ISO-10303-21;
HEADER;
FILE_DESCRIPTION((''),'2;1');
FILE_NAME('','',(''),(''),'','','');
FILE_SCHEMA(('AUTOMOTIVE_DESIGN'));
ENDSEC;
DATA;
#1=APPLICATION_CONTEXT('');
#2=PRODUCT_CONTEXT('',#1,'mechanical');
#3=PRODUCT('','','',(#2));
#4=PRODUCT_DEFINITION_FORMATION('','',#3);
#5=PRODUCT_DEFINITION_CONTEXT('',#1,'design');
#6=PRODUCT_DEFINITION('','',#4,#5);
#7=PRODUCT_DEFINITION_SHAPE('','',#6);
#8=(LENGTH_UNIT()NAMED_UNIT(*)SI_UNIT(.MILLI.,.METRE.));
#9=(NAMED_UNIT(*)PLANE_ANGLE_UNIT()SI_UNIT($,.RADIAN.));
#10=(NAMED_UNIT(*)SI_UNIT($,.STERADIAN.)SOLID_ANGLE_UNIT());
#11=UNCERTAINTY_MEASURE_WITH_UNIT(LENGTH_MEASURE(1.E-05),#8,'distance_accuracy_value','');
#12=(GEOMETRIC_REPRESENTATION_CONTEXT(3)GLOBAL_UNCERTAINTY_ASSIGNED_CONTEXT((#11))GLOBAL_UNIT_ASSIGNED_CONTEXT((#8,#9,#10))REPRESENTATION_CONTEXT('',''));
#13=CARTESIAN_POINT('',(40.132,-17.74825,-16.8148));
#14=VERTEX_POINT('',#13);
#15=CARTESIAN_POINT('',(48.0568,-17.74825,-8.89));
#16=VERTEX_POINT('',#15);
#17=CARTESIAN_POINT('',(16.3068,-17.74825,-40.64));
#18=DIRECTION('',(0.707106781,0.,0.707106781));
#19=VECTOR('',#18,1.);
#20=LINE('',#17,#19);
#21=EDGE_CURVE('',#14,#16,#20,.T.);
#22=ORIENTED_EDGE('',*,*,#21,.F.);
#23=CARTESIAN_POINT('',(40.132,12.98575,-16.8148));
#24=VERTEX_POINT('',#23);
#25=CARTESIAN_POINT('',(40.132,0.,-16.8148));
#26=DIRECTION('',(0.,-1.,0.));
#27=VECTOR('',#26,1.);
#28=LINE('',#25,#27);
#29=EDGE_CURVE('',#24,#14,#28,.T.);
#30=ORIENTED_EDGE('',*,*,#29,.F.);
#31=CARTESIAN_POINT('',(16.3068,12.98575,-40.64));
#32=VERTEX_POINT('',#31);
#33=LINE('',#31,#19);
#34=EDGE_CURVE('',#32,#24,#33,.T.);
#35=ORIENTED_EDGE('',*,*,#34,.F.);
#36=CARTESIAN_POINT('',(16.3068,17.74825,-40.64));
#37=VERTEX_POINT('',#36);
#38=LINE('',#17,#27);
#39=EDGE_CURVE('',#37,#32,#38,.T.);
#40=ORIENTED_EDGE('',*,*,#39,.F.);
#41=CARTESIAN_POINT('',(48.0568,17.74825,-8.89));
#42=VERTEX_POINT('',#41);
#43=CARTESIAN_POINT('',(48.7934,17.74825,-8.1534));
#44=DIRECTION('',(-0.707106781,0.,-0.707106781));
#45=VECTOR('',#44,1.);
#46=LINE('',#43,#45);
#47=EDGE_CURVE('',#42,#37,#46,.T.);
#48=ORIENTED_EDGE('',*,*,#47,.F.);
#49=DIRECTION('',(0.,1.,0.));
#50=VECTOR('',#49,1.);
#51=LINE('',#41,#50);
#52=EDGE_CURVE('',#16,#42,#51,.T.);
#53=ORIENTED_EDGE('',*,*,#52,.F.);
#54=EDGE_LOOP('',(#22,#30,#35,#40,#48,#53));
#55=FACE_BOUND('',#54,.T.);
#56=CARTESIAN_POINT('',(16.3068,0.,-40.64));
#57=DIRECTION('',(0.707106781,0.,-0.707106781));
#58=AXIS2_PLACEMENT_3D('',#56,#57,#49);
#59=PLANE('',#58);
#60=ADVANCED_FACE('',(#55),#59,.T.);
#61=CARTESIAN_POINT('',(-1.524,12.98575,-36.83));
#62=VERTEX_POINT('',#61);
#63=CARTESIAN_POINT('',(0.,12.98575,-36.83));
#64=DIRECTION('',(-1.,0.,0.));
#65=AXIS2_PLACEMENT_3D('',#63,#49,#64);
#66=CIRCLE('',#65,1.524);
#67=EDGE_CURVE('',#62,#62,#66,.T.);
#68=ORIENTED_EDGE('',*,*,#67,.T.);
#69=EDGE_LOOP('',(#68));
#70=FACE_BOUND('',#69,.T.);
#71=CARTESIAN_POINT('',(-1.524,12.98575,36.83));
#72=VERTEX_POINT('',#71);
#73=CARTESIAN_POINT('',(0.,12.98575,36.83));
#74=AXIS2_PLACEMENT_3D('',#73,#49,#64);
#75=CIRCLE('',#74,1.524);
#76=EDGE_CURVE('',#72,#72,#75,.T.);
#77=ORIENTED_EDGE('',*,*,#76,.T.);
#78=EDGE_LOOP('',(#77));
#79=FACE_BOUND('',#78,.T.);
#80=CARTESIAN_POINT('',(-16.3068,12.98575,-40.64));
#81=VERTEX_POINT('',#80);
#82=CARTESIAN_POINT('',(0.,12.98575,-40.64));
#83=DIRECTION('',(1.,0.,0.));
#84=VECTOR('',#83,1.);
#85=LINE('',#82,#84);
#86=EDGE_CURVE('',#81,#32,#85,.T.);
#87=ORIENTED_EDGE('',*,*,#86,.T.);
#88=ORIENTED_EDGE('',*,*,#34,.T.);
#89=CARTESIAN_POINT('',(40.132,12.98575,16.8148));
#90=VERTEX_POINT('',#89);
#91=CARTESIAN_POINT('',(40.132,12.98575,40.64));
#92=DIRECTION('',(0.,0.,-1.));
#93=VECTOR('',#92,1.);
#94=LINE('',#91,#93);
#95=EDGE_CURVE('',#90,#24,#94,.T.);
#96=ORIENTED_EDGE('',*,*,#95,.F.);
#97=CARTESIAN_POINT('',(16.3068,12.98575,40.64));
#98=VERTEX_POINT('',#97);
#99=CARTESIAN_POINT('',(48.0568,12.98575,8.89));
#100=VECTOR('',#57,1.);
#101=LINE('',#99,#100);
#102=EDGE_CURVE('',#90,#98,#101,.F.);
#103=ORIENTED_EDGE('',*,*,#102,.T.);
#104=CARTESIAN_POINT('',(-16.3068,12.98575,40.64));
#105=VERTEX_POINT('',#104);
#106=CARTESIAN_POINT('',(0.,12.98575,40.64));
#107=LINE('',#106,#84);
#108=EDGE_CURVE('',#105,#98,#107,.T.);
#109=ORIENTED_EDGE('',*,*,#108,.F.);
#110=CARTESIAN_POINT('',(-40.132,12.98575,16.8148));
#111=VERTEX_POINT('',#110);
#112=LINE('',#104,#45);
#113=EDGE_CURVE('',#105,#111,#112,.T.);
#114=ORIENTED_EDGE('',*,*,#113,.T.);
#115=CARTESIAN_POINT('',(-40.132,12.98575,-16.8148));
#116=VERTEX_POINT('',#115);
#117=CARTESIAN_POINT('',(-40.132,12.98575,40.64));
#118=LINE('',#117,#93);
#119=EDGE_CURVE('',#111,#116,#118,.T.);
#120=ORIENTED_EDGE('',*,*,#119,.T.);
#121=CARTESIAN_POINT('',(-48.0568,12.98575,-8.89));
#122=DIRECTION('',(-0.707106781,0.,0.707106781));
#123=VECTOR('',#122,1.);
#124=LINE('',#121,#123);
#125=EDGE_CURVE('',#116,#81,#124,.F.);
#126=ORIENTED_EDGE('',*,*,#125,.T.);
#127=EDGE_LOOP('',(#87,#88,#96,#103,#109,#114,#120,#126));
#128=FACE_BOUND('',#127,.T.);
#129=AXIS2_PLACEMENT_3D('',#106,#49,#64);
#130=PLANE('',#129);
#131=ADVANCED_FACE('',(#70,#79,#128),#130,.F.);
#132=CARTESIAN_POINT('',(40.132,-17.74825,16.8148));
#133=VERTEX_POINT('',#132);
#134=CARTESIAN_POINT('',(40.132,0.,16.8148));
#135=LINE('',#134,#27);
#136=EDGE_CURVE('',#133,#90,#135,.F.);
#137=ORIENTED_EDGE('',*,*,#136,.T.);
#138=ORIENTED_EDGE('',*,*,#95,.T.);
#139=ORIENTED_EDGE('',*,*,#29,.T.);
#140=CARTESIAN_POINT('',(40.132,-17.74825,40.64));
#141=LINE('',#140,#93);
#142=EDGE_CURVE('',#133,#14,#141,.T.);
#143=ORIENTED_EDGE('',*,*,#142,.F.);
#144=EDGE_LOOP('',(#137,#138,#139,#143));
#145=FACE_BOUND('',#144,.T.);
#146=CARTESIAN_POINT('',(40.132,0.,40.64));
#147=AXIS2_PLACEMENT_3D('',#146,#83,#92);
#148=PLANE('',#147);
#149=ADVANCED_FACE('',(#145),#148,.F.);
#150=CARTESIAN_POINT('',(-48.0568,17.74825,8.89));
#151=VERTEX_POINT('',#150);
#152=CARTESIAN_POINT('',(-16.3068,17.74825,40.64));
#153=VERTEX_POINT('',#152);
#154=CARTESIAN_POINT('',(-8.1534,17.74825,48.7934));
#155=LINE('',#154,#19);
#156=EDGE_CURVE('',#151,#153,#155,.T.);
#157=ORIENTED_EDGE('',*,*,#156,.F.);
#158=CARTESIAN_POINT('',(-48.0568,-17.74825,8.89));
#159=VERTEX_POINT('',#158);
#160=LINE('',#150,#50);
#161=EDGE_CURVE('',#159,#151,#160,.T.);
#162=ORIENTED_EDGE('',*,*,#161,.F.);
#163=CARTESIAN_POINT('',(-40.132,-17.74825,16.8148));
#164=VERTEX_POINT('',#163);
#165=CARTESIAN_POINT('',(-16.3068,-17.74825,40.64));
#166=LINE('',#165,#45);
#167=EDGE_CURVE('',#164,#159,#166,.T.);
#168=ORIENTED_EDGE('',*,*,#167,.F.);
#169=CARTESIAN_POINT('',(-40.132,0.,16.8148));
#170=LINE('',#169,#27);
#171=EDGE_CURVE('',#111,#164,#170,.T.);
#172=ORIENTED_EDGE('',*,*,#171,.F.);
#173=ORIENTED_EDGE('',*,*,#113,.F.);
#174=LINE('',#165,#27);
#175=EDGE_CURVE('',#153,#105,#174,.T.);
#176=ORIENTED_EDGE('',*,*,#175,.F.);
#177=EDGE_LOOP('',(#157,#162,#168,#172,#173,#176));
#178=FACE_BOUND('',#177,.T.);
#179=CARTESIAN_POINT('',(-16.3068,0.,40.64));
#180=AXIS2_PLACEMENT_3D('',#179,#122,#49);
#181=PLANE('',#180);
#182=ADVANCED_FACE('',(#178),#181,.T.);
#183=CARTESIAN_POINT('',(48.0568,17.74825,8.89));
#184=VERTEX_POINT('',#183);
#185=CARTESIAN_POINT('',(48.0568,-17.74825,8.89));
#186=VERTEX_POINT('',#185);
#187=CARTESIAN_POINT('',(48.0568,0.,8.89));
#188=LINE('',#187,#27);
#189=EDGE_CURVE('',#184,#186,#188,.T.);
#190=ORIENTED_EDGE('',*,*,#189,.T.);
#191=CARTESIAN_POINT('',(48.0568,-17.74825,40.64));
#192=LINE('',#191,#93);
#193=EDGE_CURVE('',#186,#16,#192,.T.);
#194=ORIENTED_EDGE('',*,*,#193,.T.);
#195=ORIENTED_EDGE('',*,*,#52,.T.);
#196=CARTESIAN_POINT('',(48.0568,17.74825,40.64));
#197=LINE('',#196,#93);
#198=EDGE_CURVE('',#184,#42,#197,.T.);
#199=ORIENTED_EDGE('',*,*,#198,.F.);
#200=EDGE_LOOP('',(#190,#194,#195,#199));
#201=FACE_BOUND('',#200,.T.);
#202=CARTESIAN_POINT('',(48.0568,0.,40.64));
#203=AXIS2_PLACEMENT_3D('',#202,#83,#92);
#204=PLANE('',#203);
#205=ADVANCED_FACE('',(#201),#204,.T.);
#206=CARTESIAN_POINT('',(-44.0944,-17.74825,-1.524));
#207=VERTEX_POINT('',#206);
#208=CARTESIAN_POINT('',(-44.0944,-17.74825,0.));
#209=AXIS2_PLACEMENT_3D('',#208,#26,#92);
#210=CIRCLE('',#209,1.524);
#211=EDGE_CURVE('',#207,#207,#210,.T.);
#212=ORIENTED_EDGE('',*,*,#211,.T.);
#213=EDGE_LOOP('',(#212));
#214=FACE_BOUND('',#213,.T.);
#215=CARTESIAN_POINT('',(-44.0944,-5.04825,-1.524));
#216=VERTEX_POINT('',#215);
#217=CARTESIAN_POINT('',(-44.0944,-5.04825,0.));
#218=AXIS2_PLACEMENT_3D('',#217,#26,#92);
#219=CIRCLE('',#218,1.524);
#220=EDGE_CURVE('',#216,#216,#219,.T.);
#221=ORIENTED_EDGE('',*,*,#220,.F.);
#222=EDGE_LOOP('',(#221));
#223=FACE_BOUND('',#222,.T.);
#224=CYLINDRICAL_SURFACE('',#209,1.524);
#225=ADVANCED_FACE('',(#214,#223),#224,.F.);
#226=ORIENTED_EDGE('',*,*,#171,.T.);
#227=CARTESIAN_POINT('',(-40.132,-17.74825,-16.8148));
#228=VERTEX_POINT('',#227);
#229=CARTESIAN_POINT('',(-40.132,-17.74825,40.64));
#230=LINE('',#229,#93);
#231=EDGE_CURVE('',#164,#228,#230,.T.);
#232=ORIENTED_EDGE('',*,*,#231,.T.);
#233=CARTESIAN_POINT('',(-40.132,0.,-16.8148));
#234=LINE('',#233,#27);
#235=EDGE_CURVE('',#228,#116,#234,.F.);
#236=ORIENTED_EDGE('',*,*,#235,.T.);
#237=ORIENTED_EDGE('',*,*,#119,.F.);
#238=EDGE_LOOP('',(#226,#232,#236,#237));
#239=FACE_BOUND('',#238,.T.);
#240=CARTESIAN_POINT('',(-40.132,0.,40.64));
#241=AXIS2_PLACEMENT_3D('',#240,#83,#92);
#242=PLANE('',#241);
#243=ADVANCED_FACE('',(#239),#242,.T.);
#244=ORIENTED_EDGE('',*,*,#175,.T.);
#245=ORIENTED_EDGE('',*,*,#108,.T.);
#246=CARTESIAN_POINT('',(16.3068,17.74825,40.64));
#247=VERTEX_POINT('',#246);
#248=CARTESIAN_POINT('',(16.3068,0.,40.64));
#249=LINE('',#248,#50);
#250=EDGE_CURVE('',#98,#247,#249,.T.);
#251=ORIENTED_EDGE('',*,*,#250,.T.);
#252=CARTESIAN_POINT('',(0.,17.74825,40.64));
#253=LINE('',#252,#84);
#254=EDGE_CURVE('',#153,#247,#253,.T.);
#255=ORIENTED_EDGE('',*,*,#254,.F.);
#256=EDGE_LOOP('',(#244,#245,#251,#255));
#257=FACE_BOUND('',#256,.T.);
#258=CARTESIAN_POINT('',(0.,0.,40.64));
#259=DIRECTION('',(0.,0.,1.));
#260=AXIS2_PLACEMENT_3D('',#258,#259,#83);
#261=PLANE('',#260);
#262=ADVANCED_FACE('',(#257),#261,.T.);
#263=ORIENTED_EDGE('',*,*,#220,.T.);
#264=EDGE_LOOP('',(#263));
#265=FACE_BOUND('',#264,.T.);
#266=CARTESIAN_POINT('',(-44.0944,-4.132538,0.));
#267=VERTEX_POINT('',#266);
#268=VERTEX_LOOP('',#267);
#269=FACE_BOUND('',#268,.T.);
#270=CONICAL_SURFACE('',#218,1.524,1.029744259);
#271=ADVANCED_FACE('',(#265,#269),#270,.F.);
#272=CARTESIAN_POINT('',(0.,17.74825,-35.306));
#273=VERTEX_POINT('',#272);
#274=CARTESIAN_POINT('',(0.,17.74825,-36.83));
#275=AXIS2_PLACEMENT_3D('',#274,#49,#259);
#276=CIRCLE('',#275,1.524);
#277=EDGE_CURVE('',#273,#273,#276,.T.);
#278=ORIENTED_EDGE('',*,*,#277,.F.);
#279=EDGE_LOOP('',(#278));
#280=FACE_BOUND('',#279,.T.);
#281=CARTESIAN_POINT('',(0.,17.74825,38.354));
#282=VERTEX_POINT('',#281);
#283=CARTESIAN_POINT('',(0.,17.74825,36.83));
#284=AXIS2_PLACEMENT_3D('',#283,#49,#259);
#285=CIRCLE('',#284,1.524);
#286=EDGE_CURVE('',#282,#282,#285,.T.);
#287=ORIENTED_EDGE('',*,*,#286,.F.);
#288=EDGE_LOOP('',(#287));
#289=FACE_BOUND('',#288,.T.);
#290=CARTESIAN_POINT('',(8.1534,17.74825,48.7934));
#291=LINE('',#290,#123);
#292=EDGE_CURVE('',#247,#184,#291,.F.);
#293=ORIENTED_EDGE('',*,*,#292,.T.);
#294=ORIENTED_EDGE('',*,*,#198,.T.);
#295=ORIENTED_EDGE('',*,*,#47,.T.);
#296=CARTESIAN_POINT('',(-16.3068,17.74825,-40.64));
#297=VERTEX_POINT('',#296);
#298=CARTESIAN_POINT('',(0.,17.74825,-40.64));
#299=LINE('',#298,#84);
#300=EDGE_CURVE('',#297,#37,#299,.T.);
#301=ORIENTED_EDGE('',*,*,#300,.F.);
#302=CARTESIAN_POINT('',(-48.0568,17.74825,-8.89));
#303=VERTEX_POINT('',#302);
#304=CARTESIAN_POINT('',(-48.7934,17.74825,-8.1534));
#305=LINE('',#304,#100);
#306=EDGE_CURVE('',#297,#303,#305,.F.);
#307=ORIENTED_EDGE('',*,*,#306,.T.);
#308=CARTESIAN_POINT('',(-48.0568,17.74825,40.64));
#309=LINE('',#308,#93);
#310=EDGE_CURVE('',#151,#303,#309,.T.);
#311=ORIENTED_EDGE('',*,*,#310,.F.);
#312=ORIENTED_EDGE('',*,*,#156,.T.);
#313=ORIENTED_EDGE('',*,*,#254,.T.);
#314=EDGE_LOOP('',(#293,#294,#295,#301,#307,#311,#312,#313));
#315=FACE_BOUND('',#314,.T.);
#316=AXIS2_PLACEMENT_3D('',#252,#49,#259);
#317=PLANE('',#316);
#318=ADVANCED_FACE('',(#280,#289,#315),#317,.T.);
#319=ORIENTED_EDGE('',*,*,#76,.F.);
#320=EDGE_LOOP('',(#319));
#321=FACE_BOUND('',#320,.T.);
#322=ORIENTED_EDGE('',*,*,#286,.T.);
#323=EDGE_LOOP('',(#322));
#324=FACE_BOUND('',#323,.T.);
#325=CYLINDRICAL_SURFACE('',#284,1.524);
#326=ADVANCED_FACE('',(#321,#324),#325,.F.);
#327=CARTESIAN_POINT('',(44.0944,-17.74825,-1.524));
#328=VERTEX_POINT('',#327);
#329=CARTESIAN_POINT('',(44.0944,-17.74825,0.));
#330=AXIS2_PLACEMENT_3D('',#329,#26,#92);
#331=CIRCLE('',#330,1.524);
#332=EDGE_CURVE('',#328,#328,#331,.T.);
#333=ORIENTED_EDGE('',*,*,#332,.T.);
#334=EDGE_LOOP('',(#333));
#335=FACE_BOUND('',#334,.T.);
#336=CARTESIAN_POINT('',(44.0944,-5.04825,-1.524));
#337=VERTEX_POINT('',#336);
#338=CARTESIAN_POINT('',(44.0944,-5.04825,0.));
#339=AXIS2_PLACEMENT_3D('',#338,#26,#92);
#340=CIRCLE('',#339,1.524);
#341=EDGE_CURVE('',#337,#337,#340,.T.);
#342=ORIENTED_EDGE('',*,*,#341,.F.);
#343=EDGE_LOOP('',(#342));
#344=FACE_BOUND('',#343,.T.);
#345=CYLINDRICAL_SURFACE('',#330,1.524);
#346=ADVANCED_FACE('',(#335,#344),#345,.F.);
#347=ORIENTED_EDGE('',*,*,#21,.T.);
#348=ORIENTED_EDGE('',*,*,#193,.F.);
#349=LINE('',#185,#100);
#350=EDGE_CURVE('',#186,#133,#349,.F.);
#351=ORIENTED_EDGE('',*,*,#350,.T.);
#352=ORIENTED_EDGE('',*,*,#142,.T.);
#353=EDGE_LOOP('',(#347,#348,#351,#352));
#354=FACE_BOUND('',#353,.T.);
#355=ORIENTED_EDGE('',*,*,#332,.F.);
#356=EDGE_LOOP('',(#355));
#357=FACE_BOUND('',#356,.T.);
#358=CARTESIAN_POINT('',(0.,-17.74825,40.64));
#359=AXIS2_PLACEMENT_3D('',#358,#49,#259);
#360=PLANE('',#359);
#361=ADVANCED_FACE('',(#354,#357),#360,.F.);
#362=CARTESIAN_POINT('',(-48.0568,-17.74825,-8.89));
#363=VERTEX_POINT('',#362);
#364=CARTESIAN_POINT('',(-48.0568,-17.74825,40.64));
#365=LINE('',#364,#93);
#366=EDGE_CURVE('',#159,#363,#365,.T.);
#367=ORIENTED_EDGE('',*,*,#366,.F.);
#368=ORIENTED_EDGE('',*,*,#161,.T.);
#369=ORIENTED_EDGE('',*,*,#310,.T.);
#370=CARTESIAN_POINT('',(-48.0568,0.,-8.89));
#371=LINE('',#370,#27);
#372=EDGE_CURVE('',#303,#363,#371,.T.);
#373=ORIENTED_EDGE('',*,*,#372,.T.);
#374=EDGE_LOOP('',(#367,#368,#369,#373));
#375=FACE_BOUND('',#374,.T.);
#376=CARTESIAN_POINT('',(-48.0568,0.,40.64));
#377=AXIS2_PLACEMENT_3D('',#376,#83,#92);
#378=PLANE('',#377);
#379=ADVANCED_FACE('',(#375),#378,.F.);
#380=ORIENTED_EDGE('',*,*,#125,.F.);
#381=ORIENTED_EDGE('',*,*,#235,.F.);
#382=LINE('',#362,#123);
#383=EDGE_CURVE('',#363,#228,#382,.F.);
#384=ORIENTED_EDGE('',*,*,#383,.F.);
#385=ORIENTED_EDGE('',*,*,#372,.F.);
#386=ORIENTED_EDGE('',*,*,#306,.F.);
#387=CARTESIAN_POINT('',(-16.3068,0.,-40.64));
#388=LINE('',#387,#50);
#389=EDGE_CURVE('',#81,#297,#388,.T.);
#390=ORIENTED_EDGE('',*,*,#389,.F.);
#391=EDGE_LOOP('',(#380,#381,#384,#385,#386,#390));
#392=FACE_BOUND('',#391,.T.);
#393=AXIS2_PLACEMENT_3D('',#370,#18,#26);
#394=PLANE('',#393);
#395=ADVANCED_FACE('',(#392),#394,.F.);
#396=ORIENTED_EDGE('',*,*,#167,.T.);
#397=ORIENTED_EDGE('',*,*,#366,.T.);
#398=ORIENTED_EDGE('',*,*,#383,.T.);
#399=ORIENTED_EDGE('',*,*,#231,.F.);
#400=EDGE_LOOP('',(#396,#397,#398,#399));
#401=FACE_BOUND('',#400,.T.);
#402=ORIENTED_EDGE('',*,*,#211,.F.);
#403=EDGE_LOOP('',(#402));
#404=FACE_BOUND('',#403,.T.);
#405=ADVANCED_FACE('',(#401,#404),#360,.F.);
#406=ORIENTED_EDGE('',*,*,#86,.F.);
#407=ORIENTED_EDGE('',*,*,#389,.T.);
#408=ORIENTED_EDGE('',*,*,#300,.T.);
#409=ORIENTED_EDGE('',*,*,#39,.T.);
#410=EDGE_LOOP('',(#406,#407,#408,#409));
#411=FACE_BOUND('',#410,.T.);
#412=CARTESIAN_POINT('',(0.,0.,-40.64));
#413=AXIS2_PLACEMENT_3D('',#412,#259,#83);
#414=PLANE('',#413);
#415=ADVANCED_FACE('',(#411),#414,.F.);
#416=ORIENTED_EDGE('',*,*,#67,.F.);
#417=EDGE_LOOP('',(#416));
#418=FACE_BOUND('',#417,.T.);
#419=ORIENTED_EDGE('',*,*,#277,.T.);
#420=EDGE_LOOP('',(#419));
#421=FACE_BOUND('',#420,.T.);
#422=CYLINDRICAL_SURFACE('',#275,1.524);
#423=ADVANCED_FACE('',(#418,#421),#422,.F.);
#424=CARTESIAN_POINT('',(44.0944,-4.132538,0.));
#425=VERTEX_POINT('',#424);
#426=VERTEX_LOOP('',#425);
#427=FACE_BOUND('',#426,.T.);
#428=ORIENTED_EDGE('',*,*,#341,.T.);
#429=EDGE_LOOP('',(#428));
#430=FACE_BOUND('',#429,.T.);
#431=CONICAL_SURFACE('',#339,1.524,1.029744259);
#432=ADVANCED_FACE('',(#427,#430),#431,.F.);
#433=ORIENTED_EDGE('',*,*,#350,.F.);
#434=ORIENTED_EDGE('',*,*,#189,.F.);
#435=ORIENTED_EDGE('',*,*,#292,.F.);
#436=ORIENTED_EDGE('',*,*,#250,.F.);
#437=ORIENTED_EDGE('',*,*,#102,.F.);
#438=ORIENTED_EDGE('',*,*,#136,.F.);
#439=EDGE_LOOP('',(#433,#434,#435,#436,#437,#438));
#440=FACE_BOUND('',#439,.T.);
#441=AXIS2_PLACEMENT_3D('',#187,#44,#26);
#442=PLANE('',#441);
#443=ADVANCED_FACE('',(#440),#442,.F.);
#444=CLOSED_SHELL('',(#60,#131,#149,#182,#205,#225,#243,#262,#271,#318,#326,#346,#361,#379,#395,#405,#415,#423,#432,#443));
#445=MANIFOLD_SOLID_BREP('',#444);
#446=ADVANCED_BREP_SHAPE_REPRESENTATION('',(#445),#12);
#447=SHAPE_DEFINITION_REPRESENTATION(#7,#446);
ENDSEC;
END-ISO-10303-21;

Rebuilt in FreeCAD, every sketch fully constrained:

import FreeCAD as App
import Part
import Sketcher
Q = App.Units.Quantity


def edges_at(feature, points):
    """Names of the edges that pass closest to the given points."""
    edges = feature.Shape.Edges
    near = lambda p: min(range(len(edges)), key=lambda i: edges[i].distToShape(Part.Vertex(*p))[0])
    return sorted({f"Edge{near(p) + 1}" for p in points})

doc = App.newDocument("Part")
body = doc.addObject("PartDesign::Body", "Body")

# Sketch on XY plane
sketch1 = doc.addObject("Sketcher::SketchObject", "Sketch")
body.addObject(sketch1)
sketch1.AttachmentSupport = (doc.XY_Plane, [""])
sketch1.MapMode = "FlatFace"
sketch1.addGeometry(Part.LineSegment(App.Vector(48, 18, 0), App.Vector(-48, 18, 0)), False)
sketch1.addGeometry(Part.LineSegment(App.Vector(-48, 18, 0), App.Vector(-48, -18, 0)), False)
sketch1.addGeometry(Part.LineSegment(App.Vector(-48, -18, 0), App.Vector(-40, -18, 0)), False)
sketch1.addGeometry(Part.LineSegment(App.Vector(-40, -18, 0), App.Vector(-40, 13, 0)), False)
sketch1.addGeometry(Part.LineSegment(App.Vector(-40, 13, 0), App.Vector(40, 13, 0)), False)
sketch1.addGeometry(Part.LineSegment(App.Vector(40, 13, 0), App.Vector(40, -18, 0)), False)
sketch1.addGeometry(Part.LineSegment(App.Vector(40, -18, 0), App.Vector(48, -18, 0)), False)
sketch1.addGeometry(Part.LineSegment(App.Vector(48, -18, 0), App.Vector(48, 18, 0)), False)
sketch1.addConstraint(Sketcher.Constraint("Coincident", 0, 2, 1, 1))
sketch1.addConstraint(Sketcher.Constraint("Coincident", 1, 2, 2, 1))
sketch1.addConstraint(Sketcher.Constraint("Coincident", 2, 2, 3, 1))
sketch1.addConstraint(Sketcher.Constraint("Coincident", 3, 2, 4, 1))
sketch1.addConstraint(Sketcher.Constraint("Coincident", 4, 2, 5, 1))
sketch1.addConstraint(Sketcher.Constraint("Coincident", 5, 2, 6, 1))
sketch1.addConstraint(Sketcher.Constraint("Coincident", 6, 2, 7, 1))
sketch1.addConstraint(Sketcher.Constraint("Coincident", 7, 2, 0, 1))
sketch1.addConstraint(Sketcher.Constraint("Horizontal", 0))
sketch1.addConstraint(Sketcher.Constraint("Vertical", 1))
sketch1.addConstraint(Sketcher.Constraint("Horizontal", 2))
sketch1.addConstraint(Sketcher.Constraint("Vertical", 3))
sketch1.addConstraint(Sketcher.Constraint("Horizontal", 4))
sketch1.addConstraint(Sketcher.Constraint("Vertical", 5))
sketch1.addConstraint(Sketcher.Constraint("Horizontal", 6))
sketch1.addConstraint(Sketcher.Constraint("Vertical", 7))
sketch1.addConstraint(Sketcher.Constraint("Symmetric", 0, 2, 6, 2, -1, 1))
sketch1.addConstraint(Sketcher.Constraint("Symmetric", 2, 2, 5, 2, -2))
sketch1.addConstraint(Sketcher.Constraint("DistanceX", 4, 1, 4, 2, Q("3.16 in")))
sketch1.addConstraint(Sketcher.Constraint("DistanceY", 3, 1, 3, 2, Q("1.21 in")))
sketch1.addConstraint(Sketcher.Constraint("DistanceX", 0, 2, 0, 1, Q("3.784 in")))
sketch1.addConstraint(Sketcher.Constraint("DistanceY", 1, 2, 1, 1, Q("1.3975 in")))
pad1 = doc.addObject("PartDesign::Pad", "Pad")
body.addObject(pad1)
pad1.Profile = sketch1
pad1.Length = Q("3.2 in")
pad1.Midplane = True

# Sketch on XZ plane
sketch2 = doc.addObject("Sketcher::SketchObject", "Sketch001")
body.addObject(sketch2)
sketch2.AttachmentSupport = (doc.XZ_Plane, [""])
sketch2.MapMode = "FlatFace"
sketch2.AttachmentOffset = App.Placement(App.Vector(0, 0, 17.74825), App.Rotation())
sketch2.addGeometry(Part.Circle(App.Vector(44.1, 0, 0), App.Vector(0, 0, 1), 1.5), False)
sketch2.addGeometry(Part.Circle(App.Vector(-44.1, 0, 0), App.Vector(0, 0, 1), 1.5), False)
sketch2.addConstraint(Sketcher.Constraint("Equal", 0, 1))
sketch2.addConstraint(Sketcher.Constraint("Symmetric", 0, 3, 1, 3, -1, 1))
sketch2.addConstraint(Sketcher.Constraint("PointOnObject", 0, 3, -1))
sketch2.addConstraint(Sketcher.Constraint("Diameter", 0, Q("0.12 in")))
sketch2.addConstraint(Sketcher.Constraint("DistanceX", -1, 1, 0, 3, Q("1.736 in")))
doc.recompute()
hole = doc.addObject("PartDesign::Hole", "Hole")
body.addObject(hole)
hole.Profile = sketch2
hole.ThreadType = "None"
hole.Diameter = Q("0.12 in")
hole.DepthType = "Dimension"
hole.Depth = Q("0.5 in")
hole.DrillPoint = "Angled"
hole.DrillPointAngle = 118

# Sketch on XZ plane
sketch3 = doc.addObject("Sketcher::SketchObject", "Sketch002")
body.addObject(sketch3)
sketch3.AttachmentSupport = (doc.XZ_Plane, [""])
sketch3.MapMode = "FlatFace"
sketch3.AttachmentOffset = App.Placement(App.Vector(0, 0, -17.74825), App.Rotation())
sketch3.addGeometry(Part.Circle(App.Vector(0, 36.8, 0), App.Vector(0, 0, 1), 1.5), False)
sketch3.addGeometry(Part.Circle(App.Vector(0, -36.8, 0), App.Vector(0, 0, 1), 1.5), False)
sketch3.addConstraint(Sketcher.Constraint("Equal", 0, 1))
sketch3.addConstraint(Sketcher.Constraint("Symmetric", 0, 3, 1, 3, -1, 1))
sketch3.addConstraint(Sketcher.Constraint("PointOnObject", 0, 3, -2))
sketch3.addConstraint(Sketcher.Constraint("Diameter", 0, Q("0.12 in")))
sketch3.addConstraint(Sketcher.Constraint("DistanceY", 1, 3, 0, 3, Q("2.9 in")))
doc.recompute()
hole2 = doc.addObject("PartDesign::Hole", "Hole001")
body.addObject(hole2)
hole2.Profile = sketch3
hole2.ThreadType = "None"
hole2.Diameter = Q("0.12 in")
hole2.DepthType = "Dimension"
hole2.Depth = Q("0.5 in")
hole2.DrillPoint = "Angled"
hole2.DrillPointAngle = 118
hole2.Reversed = True
doc.recompute()

chamfer = doc.addObject("PartDesign::Chamfer", "Chamfer")
body.addObject(chamfer)
chamfer.Base = (hole2, edges_at(hole2, [
    (-48.057, 0, 40.64),
    (-48.057, 0, -40.64),
    (48.057, 0, -40.64),
    (48.057, 0, 40.64),
]))
chamfer.Size = Q("1.25 in")

doc.recompute()
